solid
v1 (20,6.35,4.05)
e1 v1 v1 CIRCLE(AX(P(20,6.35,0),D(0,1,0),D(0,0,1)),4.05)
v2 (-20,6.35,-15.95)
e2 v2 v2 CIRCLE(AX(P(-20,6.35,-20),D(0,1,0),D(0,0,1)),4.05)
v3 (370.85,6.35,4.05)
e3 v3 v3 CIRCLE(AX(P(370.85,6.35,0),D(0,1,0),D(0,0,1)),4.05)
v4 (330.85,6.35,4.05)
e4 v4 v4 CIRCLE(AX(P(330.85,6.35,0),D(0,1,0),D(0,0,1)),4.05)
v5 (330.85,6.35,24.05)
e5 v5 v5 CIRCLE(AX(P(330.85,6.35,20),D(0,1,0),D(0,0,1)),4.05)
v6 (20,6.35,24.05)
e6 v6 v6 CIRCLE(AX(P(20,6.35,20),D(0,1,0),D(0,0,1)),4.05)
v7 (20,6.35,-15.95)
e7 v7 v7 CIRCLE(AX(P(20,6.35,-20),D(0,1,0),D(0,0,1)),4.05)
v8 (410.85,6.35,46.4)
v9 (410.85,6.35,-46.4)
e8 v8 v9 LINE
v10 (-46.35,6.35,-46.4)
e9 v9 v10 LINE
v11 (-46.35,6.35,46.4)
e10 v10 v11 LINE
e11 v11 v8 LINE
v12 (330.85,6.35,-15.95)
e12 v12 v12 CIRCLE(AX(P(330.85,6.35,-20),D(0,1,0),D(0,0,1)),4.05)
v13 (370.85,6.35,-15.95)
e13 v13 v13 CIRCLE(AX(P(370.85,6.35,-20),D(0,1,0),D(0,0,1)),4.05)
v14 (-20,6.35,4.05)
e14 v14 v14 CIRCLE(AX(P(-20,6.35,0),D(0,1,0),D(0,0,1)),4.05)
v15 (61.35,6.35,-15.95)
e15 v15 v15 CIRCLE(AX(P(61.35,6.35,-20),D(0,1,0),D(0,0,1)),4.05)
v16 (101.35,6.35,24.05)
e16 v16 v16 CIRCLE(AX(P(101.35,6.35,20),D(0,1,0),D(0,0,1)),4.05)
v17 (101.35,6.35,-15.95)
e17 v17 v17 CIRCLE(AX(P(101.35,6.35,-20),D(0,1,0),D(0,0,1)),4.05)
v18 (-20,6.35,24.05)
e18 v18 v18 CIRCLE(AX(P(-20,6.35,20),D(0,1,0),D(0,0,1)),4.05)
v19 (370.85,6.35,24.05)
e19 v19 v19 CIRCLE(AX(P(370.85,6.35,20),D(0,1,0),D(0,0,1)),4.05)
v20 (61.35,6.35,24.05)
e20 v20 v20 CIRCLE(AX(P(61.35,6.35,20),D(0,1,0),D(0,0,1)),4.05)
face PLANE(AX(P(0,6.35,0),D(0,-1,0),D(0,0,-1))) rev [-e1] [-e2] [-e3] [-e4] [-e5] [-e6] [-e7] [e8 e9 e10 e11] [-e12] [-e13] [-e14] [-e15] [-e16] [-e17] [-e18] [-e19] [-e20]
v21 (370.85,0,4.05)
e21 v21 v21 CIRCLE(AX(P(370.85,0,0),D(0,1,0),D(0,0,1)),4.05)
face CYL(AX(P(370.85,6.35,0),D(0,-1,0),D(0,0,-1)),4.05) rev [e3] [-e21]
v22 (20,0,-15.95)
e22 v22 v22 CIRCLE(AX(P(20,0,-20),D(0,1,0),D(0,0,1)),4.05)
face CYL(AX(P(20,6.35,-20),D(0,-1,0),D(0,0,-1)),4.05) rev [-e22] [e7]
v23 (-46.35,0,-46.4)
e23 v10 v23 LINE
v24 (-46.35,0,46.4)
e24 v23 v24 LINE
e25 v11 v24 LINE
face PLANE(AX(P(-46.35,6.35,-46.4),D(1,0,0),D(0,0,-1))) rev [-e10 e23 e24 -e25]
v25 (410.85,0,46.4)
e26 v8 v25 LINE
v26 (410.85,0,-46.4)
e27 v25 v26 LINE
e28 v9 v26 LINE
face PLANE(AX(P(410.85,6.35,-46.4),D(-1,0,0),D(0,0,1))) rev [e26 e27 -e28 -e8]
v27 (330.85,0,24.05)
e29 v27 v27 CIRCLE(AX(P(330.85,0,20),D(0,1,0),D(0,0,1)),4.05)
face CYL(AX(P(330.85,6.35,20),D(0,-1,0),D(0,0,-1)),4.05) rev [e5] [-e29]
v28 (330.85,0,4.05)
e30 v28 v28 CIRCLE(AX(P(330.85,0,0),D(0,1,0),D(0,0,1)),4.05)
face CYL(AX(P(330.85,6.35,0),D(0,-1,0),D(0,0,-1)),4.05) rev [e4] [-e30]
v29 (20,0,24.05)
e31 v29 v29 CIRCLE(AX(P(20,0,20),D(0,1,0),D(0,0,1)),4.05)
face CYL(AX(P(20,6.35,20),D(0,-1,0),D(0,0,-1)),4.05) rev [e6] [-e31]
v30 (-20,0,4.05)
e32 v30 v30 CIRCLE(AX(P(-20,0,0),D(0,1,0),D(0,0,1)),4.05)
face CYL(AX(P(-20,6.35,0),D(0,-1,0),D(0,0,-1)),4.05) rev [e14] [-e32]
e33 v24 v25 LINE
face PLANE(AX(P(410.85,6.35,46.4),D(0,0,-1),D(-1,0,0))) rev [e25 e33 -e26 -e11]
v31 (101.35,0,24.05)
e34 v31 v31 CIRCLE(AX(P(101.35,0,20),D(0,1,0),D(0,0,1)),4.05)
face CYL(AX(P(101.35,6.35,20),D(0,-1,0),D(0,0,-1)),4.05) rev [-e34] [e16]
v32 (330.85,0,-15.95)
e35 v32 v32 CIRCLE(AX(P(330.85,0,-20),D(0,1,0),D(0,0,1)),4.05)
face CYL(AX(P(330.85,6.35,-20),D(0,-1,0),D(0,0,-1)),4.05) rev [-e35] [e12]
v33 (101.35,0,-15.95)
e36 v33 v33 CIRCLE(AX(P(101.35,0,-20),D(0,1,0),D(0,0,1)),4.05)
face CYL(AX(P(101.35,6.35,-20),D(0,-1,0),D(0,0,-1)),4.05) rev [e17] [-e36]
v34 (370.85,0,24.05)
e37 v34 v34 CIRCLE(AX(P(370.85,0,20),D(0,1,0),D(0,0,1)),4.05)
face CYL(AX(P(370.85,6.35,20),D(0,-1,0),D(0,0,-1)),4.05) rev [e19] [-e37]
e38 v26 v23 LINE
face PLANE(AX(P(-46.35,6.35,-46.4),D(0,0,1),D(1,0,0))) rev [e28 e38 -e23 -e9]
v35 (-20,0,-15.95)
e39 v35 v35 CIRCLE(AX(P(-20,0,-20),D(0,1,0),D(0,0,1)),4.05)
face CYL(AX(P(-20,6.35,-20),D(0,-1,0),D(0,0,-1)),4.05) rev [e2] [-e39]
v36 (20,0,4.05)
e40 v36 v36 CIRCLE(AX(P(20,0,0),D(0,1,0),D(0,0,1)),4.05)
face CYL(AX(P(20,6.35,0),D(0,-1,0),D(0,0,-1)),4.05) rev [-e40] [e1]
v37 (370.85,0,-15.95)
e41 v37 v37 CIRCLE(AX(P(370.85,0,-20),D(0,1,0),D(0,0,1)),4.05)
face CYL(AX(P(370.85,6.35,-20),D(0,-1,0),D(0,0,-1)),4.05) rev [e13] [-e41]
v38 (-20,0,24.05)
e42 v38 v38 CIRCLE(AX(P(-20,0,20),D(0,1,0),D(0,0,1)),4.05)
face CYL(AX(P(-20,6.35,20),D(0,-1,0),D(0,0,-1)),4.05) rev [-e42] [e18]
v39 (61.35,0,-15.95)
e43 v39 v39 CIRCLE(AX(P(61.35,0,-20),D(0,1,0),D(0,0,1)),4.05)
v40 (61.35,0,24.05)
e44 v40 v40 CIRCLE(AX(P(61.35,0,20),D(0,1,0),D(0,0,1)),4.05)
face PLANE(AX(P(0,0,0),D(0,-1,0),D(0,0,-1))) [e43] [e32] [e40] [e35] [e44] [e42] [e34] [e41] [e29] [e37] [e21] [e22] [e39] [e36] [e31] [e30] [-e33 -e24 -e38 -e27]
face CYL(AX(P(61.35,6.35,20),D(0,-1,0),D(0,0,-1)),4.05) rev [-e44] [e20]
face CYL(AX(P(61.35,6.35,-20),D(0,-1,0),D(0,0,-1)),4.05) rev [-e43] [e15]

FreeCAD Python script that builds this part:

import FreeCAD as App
import Part
import Sketcher
from FreeCAD import Vector
Q = App.Units.Quantity


def add_polygon(sketch, points):
    """Adds a closed chain of lines whose ends are joined by coincident constraints."""
    first, n = sketch.GeometryCount, len(points)
    for a, b in zip(points, points[1:] + points[:1]):
        sketch.addGeometry(Part.LineSegment(App.Vector(*a, 0), App.Vector(*b, 0)), False)
    for i in range(n):
        sketch.addConstraint(Sketcher.Constraint("Coincident", first + i, 2, first + (i + 1) % n, 1))

doc = App.newDocument("Part")
body = doc.addObject("PartDesign::Body", "Body")

sketch1 = body.newObject("Sketcher::SketchObject", "Sketch")
sketch1.AttachmentSupport = (doc.getObject("XZ_Plane"), [""])
sketch1.MapMode = "FlatFace"
add_polygon(sketch1, [(-46.4, -46.4), (-46.4, 46.4), (410.9, 46.4), (410.9, -46.4)])
sketch1.addGeometry(Part.Circle(Vector(-20, 20, 0), Vector(0, 0, 1), 4), False)
sketch1.addGeometry(Part.Circle(Vector(20, 20, 0), Vector(0, 0, 1), 4), False)
sketch1.addGeometry(Part.Circle(Vector(61.4, 20, 0), Vector(0, 0, 1), 4), False)
sketch1.addGeometry(Part.Circle(Vector(101.3, 20, 0), Vector(0, 0, 1), 4), False)
sketch1.addGeometry(Part.Circle(Vector(-20, 0, 0), Vector(0, 0, 1), 4), False)
sketch1.addGeometry(Part.Circle(Vector(20, 0, 0), Vector(0, 0, 1), 4), False)
sketch1.addGeometry(Part.Circle(Vector(330.9, 20, 0), Vector(0, 0, 1), 4), False)
sketch1.addGeometry(Part.Circle(Vector(370.9, 20, 0), Vector(0, 0, 1), 4), False)
sketch1.addGeometry(Part.Circle(Vector(330.9, 0, 0), Vector(0, 0, 1), 4), False)
sketch1.addGeometry(Part.Circle(Vector(370.9, 0, 0), Vector(0, 0, 1), 4), False)
sketch1.addGeometry(Part.Circle(Vector(-20, -20, 0), Vector(0, 0, 1), 4), False)
sketch1.addGeometry(Part.Circle(Vector(20, -20, 0), Vector(0, 0, 1), 4), False)
sketch1.addGeometry(Part.Circle(Vector(61.4, -20, 0), Vector(0, 0, 1), 4), False)
sketch1.addGeometry(Part.Circle(Vector(101.3, -20, 0), Vector(0, 0, 1), 4), False)
sketch1.addGeometry(Part.Circle(Vector(330.9, -20, 0), Vector(0, 0, 1), 4), False)
sketch1.addGeometry(Part.Circle(Vector(370.9, -20, 0), Vector(0, 0, 1), 4), False)
sketch1.addConstraint([
    Sketcher.Constraint("Vertical", 0),
    Sketcher.Constraint("Horizontal", 1),
    Sketcher.Constraint("Vertical", 2),
    Sketcher.Constraint("Horizontal", 3),
    Sketcher.Constraint("Equal", 4, 5),
    Sketcher.Constraint("Equal", 5, 6),
    Sketcher.Constraint("Equal", 6, 7),
    Sketcher.Constraint("Equal", 7, 8),
    Sketcher.Constraint("Equal", 8, 9),
    Sketcher.Constraint("Equal", 9, 10),
    Sketcher.Constraint("Equal", 10, 11),
    Sketcher.Constraint("Equal", 11, 12),
    Sketcher.Constraint("Equal", 12, 13),
    Sketcher.Constraint("Equal", 13, 14),
    Sketcher.Constraint("Equal", 14, 15),
    Sketcher.Constraint("Equal", 15, 16),
    Sketcher.Constraint("Equal", 16, 17),
    Sketcher.Constraint("Equal", 17, 18),
    Sketcher.Constraint("Equal", 18, 19),
    Sketcher.Constraint("Symmetric", 8, 3, 9, 3, -1, 1),
    Sketcher.Constraint("Symmetric", 5, 3, 14, 3, -1, 1),
    Sketcher.Constraint("Symmetric", 4, 3, 15, 3, -1, 1),
    Sketcher.Constraint("Symmetric", 4, 3, 5, 3, -2),
    Sketcher.Constraint("Symmetric", 6, 3, 16, 3, -1),
    Sketcher.Constraint("Symmetric", 7, 3, 17, 3, -1),
    Sketcher.Constraint("Symmetric", 10, 3, 18, 3, -1),
    Sketcher.Constraint("Symmetric", 11, 3, 19, 3, -1),
    Sketcher.Constraint("PointOnObject", 8, 3, -1),
    Sketcher.Constraint("PointOnObject", 12, 3, -1),
    Sketcher.Constraint("PointOnObject", 13, 3, -1),
    Sketcher.Constraint("Horizontal", 5, 3, 6, 3),
    Sketcher.Constraint("Horizontal", 6, 3, 7, 3),
    Sketcher.Constraint("Horizontal", 7, 3, 10, 3),
    Sketcher.Constraint("Horizontal", 10, 3, 11, 3),
    Sketcher.Constraint("Vertical", 4, 3, 8, 3),
    Sketcher.Constraint("Vertical", 10, 3, 12, 3),
    Sketcher.Constraint("Vertical", 11, 3, 13, 3),
    Sketcher.Constraint("Diameter", 4, Q("8.1 mm")),
    Sketcher.Constraint("DistanceX", 1, 1, 1, 2, Q("457.2 mm")),
    Sketcher.Constraint("DistanceY", 0, 1, 0, 2, Q("92.8 mm")),
    Sketcher.Constraint("DistanceX", 4, 3, -1, 1, Q("20 mm")),
    Sketcher.Constraint("DistanceY", -1, 1, 4, 3, Q("20 mm")),
    Sketcher.Constraint("DistanceX", 6, 3, 7, 3, Q("40 mm")),
    Sketcher.Constraint("DistanceX", 10, 3, 11, 3, Q("40 mm")),
    Sketcher.Constraint("DistanceX", 11, 3, 1, 2, Q("40 mm")),
    Sketcher.Constraint("DistanceY", -1, 1, 0, 2, Q("46.4 mm")),
    Sketcher.Constraint("DistanceX", 7, 3, 10, 3, Q("229.5 mm")),
    Sketcher.Constraint("DistanceX", -1, 1, 6, 3, Q("61.35 mm")),
])
pad1 = body.newObject("PartDesign::Pad", "Pad")
pad1.Profile = sketch1
pad1.Length = 6.35
pad1.Reversed = True

doc.recompute()
